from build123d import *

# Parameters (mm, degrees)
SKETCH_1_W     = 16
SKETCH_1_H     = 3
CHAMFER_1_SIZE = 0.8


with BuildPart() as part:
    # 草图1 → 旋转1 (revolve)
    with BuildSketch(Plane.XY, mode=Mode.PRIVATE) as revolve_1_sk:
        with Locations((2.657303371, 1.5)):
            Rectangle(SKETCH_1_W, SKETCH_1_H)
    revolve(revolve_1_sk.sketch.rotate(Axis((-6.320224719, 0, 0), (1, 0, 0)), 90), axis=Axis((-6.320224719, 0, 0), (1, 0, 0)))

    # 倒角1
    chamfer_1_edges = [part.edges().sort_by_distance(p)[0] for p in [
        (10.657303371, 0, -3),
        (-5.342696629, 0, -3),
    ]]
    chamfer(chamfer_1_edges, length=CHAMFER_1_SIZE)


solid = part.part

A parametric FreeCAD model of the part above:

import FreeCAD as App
import Part
import Sketcher

V = App.Vector
Q = App.Units.Quantity


def edges_at(feature, points):
    """Names of the edges that pass closest to the given points."""
    edges = feature.Shape.Edges
    near = lambda p: min(range(len(edges)), key=lambda i: edges[i].distToShape(Part.Vertex(*p))[0])
    return sorted({f"Edge{near(p) + 1}" for p in points})

doc = App.newDocument("Part")
body = doc.addObject("PartDesign::Body", "Body")

sketch1 = body.newObject("Sketcher::SketchObject", "Sketch")
sketch1.AttachmentSupport = (doc.getObject("XY_Plane"), [""])
sketch1.MapMode = "FlatFace"
sketch1.addGeometry([
    Part.LineSegment(V(-5.3, 3, 0), V(-5.3, 0, 0)),
    Part.LineSegment(V(-5.3, 0, 0), V(10.7, 0, 0)),
    Part.LineSegment(V(10.7, 0, 0), V(10.7, 3, 0)),
    Part.LineSegment(V(10.7, 3, 0), V(-5.3, 3, 0)),
], False)
sketch1.addConstraint([
    Sketcher.Constraint("Coincident", 0, 2, 1, 1),
    Sketcher.Constraint("Coincident", 1, 2, 2, 1),
    Sketcher.Constraint("Coincident", 2, 2, 3, 1),
    Sketcher.Constraint("Coincident", 3, 2, 0, 1),
    Sketcher.Constraint("Vertical", 0),
    Sketcher.Constraint("Horizontal", 1),
    Sketcher.Constraint("Vertical", 2),
    Sketcher.Constraint("Horizontal", 3),
    Sketcher.Constraint("PointOnObject", 0, 2, -1),
    Sketcher.Constraint("DistanceX", 1, 1, 1, 2, Q("16 mm")),
    Sketcher.Constraint("DistanceY", 0, 2, 0, 1, Q("3 mm")),
    Sketcher.Constraint("DistanceX", 0, 2, -1, 1, Q("5.342697 mm")),
])
revolution = body.newObject("PartDesign::Revolution", "Revolution")
revolution.Profile = sketch1
revolution.ReferenceAxis = (sketch1, ["H_Axis"])
revolution.Angle = 360
doc.recompute()

chamfer = body.newObject("PartDesign::Chamfer", "Chamfer")
chamfer.Base = (revolution, edges_at(revolution, [(10.657, 0, -3), (-5.343, 0, -3)]))
chamfer.Size = 0.8

doc.recompute()
